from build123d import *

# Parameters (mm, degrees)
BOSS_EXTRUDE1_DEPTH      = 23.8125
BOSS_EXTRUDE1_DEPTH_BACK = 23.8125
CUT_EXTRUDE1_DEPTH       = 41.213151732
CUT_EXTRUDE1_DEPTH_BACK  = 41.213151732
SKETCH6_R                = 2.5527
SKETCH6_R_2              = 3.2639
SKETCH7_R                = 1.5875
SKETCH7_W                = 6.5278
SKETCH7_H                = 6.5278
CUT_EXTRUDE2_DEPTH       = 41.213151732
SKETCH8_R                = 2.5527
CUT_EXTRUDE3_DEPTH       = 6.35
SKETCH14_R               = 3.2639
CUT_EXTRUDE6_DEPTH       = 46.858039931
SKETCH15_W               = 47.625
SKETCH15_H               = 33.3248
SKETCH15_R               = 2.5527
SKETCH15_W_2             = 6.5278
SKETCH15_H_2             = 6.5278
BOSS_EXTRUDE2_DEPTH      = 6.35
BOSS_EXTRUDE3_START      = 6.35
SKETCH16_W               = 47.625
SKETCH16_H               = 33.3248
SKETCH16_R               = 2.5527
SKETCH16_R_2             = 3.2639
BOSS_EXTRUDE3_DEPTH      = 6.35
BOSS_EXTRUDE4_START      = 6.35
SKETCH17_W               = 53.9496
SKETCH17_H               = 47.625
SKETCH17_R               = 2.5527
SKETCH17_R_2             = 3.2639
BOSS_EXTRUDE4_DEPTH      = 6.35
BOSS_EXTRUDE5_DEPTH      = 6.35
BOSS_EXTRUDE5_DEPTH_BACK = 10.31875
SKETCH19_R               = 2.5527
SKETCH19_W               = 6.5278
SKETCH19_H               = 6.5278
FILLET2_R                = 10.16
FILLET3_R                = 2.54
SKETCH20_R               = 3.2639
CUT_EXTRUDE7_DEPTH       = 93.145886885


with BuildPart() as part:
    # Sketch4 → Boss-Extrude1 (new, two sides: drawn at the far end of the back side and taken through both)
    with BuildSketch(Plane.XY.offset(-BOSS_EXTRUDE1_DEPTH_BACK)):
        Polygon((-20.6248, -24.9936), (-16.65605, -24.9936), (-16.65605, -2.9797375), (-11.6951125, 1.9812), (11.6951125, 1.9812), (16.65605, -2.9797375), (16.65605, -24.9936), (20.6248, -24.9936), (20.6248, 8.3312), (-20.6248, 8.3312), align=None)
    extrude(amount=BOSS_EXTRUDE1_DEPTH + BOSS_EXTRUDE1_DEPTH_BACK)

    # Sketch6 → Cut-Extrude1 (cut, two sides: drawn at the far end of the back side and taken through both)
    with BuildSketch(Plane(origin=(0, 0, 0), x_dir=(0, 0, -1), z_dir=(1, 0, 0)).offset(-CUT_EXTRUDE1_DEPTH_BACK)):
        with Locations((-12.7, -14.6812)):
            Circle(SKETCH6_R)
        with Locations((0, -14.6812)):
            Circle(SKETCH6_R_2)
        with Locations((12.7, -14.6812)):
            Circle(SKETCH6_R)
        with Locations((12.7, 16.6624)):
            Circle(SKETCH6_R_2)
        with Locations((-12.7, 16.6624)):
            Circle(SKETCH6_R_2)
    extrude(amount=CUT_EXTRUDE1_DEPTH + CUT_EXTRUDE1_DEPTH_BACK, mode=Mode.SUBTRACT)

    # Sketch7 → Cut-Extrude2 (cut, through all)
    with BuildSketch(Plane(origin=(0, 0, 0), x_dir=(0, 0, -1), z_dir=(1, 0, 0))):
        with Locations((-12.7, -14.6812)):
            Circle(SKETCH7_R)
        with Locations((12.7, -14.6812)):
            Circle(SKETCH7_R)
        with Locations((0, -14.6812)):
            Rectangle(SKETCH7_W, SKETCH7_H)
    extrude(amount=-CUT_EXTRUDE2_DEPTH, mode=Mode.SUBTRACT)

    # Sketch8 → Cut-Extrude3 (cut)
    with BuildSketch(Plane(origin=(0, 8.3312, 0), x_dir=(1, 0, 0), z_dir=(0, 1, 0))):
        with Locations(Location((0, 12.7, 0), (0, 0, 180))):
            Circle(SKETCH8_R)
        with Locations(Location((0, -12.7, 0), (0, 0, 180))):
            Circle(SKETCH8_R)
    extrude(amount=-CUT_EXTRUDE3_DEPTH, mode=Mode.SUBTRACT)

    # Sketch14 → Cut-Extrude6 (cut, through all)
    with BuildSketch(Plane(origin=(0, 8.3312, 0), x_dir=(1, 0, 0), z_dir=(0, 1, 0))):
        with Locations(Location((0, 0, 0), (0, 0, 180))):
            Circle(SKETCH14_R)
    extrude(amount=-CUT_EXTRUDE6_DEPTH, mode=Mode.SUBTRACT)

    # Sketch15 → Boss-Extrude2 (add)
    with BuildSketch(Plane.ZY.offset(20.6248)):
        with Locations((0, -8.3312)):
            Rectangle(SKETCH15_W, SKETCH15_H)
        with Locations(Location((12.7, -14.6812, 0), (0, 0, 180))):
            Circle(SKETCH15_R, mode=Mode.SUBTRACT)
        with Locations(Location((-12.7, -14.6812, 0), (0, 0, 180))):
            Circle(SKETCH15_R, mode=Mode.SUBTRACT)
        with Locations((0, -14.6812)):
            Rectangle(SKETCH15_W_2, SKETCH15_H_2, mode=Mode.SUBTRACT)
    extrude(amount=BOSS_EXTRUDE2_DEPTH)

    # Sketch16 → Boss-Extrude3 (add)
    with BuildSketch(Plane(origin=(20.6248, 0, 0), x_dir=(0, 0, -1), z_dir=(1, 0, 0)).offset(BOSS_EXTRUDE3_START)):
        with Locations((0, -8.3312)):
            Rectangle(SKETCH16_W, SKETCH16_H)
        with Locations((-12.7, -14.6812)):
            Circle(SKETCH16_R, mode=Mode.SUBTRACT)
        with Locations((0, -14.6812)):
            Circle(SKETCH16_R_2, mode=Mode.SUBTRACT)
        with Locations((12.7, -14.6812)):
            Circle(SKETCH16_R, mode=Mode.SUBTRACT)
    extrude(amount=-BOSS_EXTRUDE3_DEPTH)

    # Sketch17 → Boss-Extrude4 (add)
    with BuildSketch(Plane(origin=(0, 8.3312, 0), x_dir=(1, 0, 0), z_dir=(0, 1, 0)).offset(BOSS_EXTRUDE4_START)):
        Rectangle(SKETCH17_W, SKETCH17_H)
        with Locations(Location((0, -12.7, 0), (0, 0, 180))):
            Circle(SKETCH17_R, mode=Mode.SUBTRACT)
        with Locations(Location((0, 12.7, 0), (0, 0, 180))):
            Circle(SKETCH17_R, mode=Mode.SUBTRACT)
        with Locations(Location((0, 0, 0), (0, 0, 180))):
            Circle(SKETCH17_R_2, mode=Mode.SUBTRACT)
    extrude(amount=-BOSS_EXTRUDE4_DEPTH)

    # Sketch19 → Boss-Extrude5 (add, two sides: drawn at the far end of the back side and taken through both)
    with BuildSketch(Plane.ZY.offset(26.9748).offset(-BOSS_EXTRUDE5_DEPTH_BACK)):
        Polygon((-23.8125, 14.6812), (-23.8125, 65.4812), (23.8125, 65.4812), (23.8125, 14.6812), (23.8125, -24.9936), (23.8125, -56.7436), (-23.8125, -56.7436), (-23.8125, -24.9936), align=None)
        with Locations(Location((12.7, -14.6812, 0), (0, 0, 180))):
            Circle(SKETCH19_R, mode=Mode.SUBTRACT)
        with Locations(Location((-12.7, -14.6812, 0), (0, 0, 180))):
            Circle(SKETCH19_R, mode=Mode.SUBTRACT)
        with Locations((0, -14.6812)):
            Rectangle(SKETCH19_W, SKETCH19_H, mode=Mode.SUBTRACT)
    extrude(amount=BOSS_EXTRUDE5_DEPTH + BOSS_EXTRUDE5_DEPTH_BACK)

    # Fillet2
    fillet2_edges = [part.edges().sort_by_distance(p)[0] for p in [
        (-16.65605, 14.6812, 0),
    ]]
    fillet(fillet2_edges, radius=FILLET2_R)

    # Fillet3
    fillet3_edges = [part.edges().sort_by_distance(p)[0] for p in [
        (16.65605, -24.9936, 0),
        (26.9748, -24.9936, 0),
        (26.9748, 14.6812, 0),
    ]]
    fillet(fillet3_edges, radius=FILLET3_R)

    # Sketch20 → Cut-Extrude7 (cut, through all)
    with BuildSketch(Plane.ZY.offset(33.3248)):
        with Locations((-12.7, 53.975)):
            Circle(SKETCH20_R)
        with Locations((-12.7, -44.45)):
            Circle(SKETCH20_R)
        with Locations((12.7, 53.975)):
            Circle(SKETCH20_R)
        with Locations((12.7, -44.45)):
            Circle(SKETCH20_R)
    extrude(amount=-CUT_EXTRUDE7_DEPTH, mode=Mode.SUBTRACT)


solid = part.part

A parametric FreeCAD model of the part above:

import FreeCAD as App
import Part
import Sketcher
from FreeCAD import Vector
Q = App.Units.Quantity


def edges_at(feature, points):
    """Names of the edges that pass closest to the given points."""
    edges = feature.Shape.Edges
    near = lambda p: min(range(len(edges)), key=lambda i: edges[i].distToShape(Part.Vertex(*p))[0])
    return sorted({f"Edge{near(p) + 1}" for p in points})


def add_polygon(sketch, points):
    """Adds a closed chain of lines whose ends are joined by coincident constraints."""
    first, n = sketch.GeometryCount, len(points)
    for a, b in zip(points, points[1:] + points[:1]):
        sketch.addGeometry(Part.LineSegment(App.Vector(*a, 0), App.Vector(*b, 0)), False)
    for i in range(n):
        sketch.addConstraint(Sketcher.Constraint("Coincident", first + i, 2, first + (i + 1) % n, 1))

doc = App.newDocument("Part")
body = doc.addObject("PartDesign::Body", "Body")

# Sketch on XY plane
sketch1 = body.newObject("Sketcher::SketchObject", "Sketch")
sketch1.AttachmentSupport = (doc.getObject("XY_Plane"), [""])
sketch1.MapMode = "FlatFace"
add_polygon(sketch1, [(-20.6, -25), (-16.7, -25), (-16.7, -3), (-11.7, 2), (11.7, 2), (16.7, -3), (16.7, -25), (20.6, -25), (20.6, 8.3), (-20.6, 8.3)])  # lines 0-9
sketch1.addConstraint(Sketcher.Constraint("Horizontal", 0))
sketch1.addConstraint(Sketcher.Constraint("Vertical", 1))
sketch1.addConstraint(Sketcher.Constraint("Horizontal", 3))
sketch1.addConstraint(Sketcher.Constraint("Vertical", 5))
sketch1.addConstraint(Sketcher.Constraint("Horizontal", 6))
sketch1.addConstraint(Sketcher.Constraint("Vertical", 7))
sketch1.addConstraint(Sketcher.Constraint("Horizontal", 8))
sketch1.addConstraint(Sketcher.Constraint("Vertical", 9))
sketch1.addConstraint(Sketcher.Constraint("Symmetric", 1, 2, 4, 2, -2))
sketch1.addConstraint(Sketcher.Constraint("Symmetric", 6, 2, 9, 2, -2))
sketch1.addConstraint(Sketcher.Constraint("Perpendicular", 2, 4))
sketch1.addConstraint(Sketcher.Constraint("Equal", 2, 4))
sketch1.addConstraint(Sketcher.Constraint("DistanceX", 0, 1, 0, 2, Q("0.15625 in")))
sketch1.addConstraint(Sketcher.Constraint("DistanceX", 8, 2, 8, 1, Q("1.624 in")))
sketch1.addConstraint(Sketcher.Constraint("DistanceY", 7, 1, 7, 2, Q("1.312 in")))
sketch1.addConstraint(Sketcher.Constraint("DistanceY", 3, 2, 7, 2, Q("0.25 in")))
sketch1.addConstraint(Sketcher.Constraint("DistanceY", 0, 2, -1, 1, Q("0.984 in")))
sketch1.addConstraint(Sketcher.Constraint("DistanceX", 3, 1, 3, 2, Q("23.390225 mm")))
pad1 = body.newObject("PartDesign::Pad", "Pad")
pad1.Profile = sketch1
pad1.Type = "TwoLengths"
pad1.Length = Q("0.9375 in")
pad1.Length2 = Q("0.9375 in")

# Sketch on YZ plane
sketch2 = body.newObject("Sketcher::SketchObject", "Sketch001")
sketch2.AttachmentSupport = (doc.getObject("YZ_Plane"), [""])
sketch2.MapMode = "FlatFace"
sketch2.addGeometry(Part.Circle(Vector(-14.7, 12.7, 0), Vector(0, 0, 1), 2.6), False)
sketch2.addGeometry(Part.Circle(Vector(-14.7, 0, 0), Vector(0, 0, 1), 3.3), False)
sketch2.addGeometry(Part.Circle(Vector(-14.7, -12.7, 0), Vector(0, 0, 1), 2.6), False)
sketch2.addGeometry(Part.Circle(Vector(16.7, -12.7, 0), Vector(0, 0, 1), 3.3), False)
sketch2.addGeometry(Part.Circle(Vector(16.7, 12.7, 0), Vector(0, 0, 1), 3.3), False)
sketch2.addConstraint(Sketcher.Constraint("Equal", 0, 2))
sketch2.addConstraint(Sketcher.Constraint("Equal", 1, 3))
sketch2.addConstraint(Sketcher.Constraint("Equal", 3, 4))
sketch2.addConstraint(Sketcher.Constraint("Symmetric", 0, 3, 2, 3, -1))
sketch2.addConstraint(Sketcher.Constraint("Symmetric", 3, 3, 4, 3, -1))
sketch2.addConstraint(Sketcher.Constraint("PointOnObject", 1, 3, -1))
sketch2.addConstraint(Sketcher.Constraint("Horizontal", 2, 3, 3, 3))
sketch2.addConstraint(Sketcher.Constraint("Vertical", 0, 3, 1, 3))
sketch2.addConstraint(Sketcher.Constraint("Diameter", 0, Q("0.201 in")))
sketch2.addConstraint(Sketcher.Constraint("Diameter", 1, Q("0.257 in")))
sketch2.addConstraint(Sketcher.Constraint("DistanceY", 2, 3, 0, 3, Q("1 in")))
sketch2.addConstraint(Sketcher.Constraint("DistanceX", 0, 3, -1, 1, Q("0.578 in")))
sketch2.addConstraint(Sketcher.Constraint("DistanceX", -1, 1, 3, 3, Q("0.656 in")))
pocket1 = body.newObject("PartDesign::Pocket", "Pocket")
pocket1.Profile = sketch2
pocket1.Type = "ThroughAll"
pocket1.Midplane = True

# Sketch on YZ plane
sketch3 = body.newObject("Sketcher::SketchObject", "Sketch002")
sketch3.AttachmentSupport = (doc.getObject("YZ_Plane"), [""])
sketch3.MapMode = "FlatFace"
sketch3.addGeometry(Part.Circle(Vector(-14.7, 12.7, 0), Vector(0, 0, 1), 1.6), False)  # 0
sketch3.addGeometry(Part.Circle(Vector(-14.7, -12.7, 0), Vector(0, 0, 1), 1.6), False)  # 1
add_polygon(sketch3, [(-11.4, 3.3), (-17.9, 3.3), (-17.9, -3.3), (-11.4, -3.3)])  # lines 2-5
sketch3.addConstraint(Sketcher.Constraint("Horizontal", 2))
sketch3.addConstraint(Sketcher.Constraint("Vertical", 3))
sketch3.addConstraint(Sketcher.Constraint("Horizontal", 4))
sketch3.addConstraint(Sketcher.Constraint("Vertical", 5))
sketch3.addConstraint(Sketcher.Constraint("Equal", 0, 1))
sketch3.addConstraint(Sketcher.Constraint("Symmetric", 0, 3, 1, 3, -1))
sketch3.addConstraint(Sketcher.Constraint("Equal", 4, 3))
sketch3.addConstraint(Sketcher.Constraint("Diameter", 0, Q("0.125 in")))
sketch3.addConstraint(Sketcher.Constraint("DistanceY", 1, 3, 0, 3, Q("1 in")))
sketch3.addConstraint(Sketcher.Constraint("DistanceX", 2, 2, 2, 1, Q("0.257 in")))
sketch3.addConstraint(Sketcher.Constraint("DistanceX", 0, 3, -1, 1, Q("0.578 in")))
sketch3.addConstraint(Sketcher.Constraint("DistanceX", 2, 2, -1, 1, Q("0.7065 in")))
sketch3.addConstraint(Sketcher.Constraint("DistanceY", -1, 1, 2, 2, Q("0.1285 in")))
pocket2 = body.newObject("PartDesign::Pocket", "Pocket001")
pocket2.Profile = sketch3
pocket2.Type = "ThroughAll"

# Sketch on XZ plane
sketch4 = body.newObject("Sketcher::SketchObject", "Sketch003")
sketch4.AttachmentSupport = (doc.getObject("XZ_Plane"), [""])
sketch4.MapMode = "FlatFace"
sketch4.AttachmentOffset = App.Placement(Vector(0, 0, -0.328 * 25.4), App.Rotation())
sketch4.addGeometry(Part.Circle(Vector(0, -12.7, 0), Vector(0, 0, 1), 2.6), False)
sketch4.addGeometry(Part.Circle(Vector(0, 12.7, 0), Vector(0, 0, 1), 2.6), False)
sketch4.addConstraint(Sketcher.Constraint("Equal", 0, 1))
sketch4.addConstraint(Sketcher.Constraint("Symmetric", 0, 3, 1, 3, -1, 1))
sketch4.addConstraint(Sketcher.Constraint("PointOnObject", 0, 3, -2))
sketch4.addConstraint(Sketcher.Constraint("Diameter", 0, Q("0.201 in")))
sketch4.addConstraint(Sketcher.Constraint("DistanceY", 0, 3, 1, 3, Q("1 in")))
pocket3 = body.newObject("PartDesign::Pocket", "Pocket002")
pocket3.Profile = sketch4
pocket3.Length = Q("0.25 in")
pocket3.Reversed = True

# Sketch on XZ plane
sketch5 = body.newObject("Sketcher::SketchObject", "Sketch004")
sketch5.AttachmentSupport = (doc.getObject("XZ_Plane"), [""])
sketch5.MapMode = "FlatFace"
sketch5.AttachmentOffset = App.Placement(Vector(0, 0, -0.328 * 25.4), App.Rotation())
sketch5.addGeometry(Part.Circle(Vector(0, 0, 0), Vector(0, 0, 1), 3.3), False)
sketch5.addConstraint(Sketcher.Constraint("Coincident", 0, 3, -1, 1))
sketch5.addConstraint(Sketcher.Constraint("Diameter", 0, Q("0.257 in")))
pocket4 = body.newObject("PartDesign::Pocket", "Pocket003")
pocket4.Profile = sketch5
pocket4.Type = "ThroughAll"
pocket4.Reversed = True

# Sketch on YZ plane
sketch6 = body.newObject("Sketcher::SketchObject", "Sketch005")
sketch6.AttachmentSupport = (doc.getObject("YZ_Plane"), [""])
sketch6.MapMode = "FlatFace"
sketch6.AttachmentOffset = App.Placement(Vector(0, 0, -0.812 * 25.4), App.Rotation())
add_polygon(sketch6, [(8.3, -23.8), (-25, -23.8), (-25, 23.8), (8.3, 23.8)])  # lines 0-3
sketch6.addGeometry(Part.Circle(Vector(-14.7, -12.7, 0), Vector(0, 0, 1), 2.6), False)  # 4
add_polygon(sketch6, [(-17.9, 3.3), (-17.9, -3.3), (-11.4, -3.3), (-11.4, 3.3)])  # lines 5-8
sketch6.addGeometry(Part.Circle(Vector(-14.7, 12.7, 0), Vector(0, 0, 1), 2.6), False)  # 9
sketch6.addConstraint(Sketcher.Constraint("Horizontal", 0))
sketch6.addConstraint(Sketcher.Constraint("Vertical", 1))
sketch6.addConstraint(Sketcher.Constraint("Horizontal", 2))
sketch6.addConstraint(Sketcher.Constraint("Vertical", 3))
sketch6.addConstraint(Sketcher.Constraint("Vertical", 5))
sketch6.addConstraint(Sketcher.Constraint("Horizontal", 6))
sketch6.addConstraint(Sketcher.Constraint("Vertical", 7))
sketch6.addConstraint(Sketcher.Constraint("Horizontal", 8))
sketch6.addConstraint(Sketcher.Constraint("Equal", 4, 9))
sketch6.addConstraint(Sketcher.Constraint("Symmetric", 4, 3, 9, 3, -1))
sketch6.addConstraint(Sketcher.Constraint("Equal", 8, 5))
sketch6.addConstraint(Sketcher.Constraint("Diameter", 4, Q("0.201 in")))
sketch6.addConstraint(Sketcher.Constraint("DistanceY", 4, 3, 9, 3, Q("1 in")))
sketch6.addConstraint(Sketcher.Constraint("DistanceX", 0, 2, 0, 1, Q("1.312 in")))
sketch6.addConstraint(Sketcher.Constraint("DistanceX", 6, 1, 6, 2, Q("0.257 in")))
sketch6.addConstraint(Sketcher.Constraint("DistanceY", 1, 1, 1, 2, Q("1.875 in")))
sketch6.addConstraint(Sketcher.Constraint("DistanceX", 4, 3, -1, 1, Q("0.578 in")))
sketch6.addConstraint(Sketcher.Constraint("DistanceX", 0, 2, -1, 1, Q("0.984 in")))
sketch6.addConstraint(Sketcher.Constraint("DistanceY", 0, 2, -1, 1, Q("0.9375 in")))
sketch6.addConstraint(Sketcher.Constraint("DistanceY", 0, 2, 5, 2, Q("0.809 in")))
sketch6.addConstraint(Sketcher.Constraint("DistanceX", 5, 2, -1, 1, Q("0.7065 in")))
pad2 = body.newObject("PartDesign::Pad", "Pad001")
pad2.Profile = sketch6
pad2.Length = Q("0.25 in")
pad2.Reversed = True

# Sketch on YZ plane
sketch7 = body.newObject("Sketcher::SketchObject", "Sketch006")
sketch7.AttachmentSupport = (doc.getObject("YZ_Plane"), [""])
sketch7.MapMode = "FlatFace"
sketch7.AttachmentOffset = App.Placement(Vector(0, 0, 1.062 * 25.4), App.Rotation())
add_polygon(sketch7, [(8.3, 23.8), (-25, 23.8), (-25, -23.8), (8.3, -23.8)])  # lines 0-3
sketch7.addGeometry(Part.Circle(Vector(-14.7, 12.7, 0), Vector(0, 0, 1), 2.6), False)  # 4
sketch7.addGeometry(Part.Circle(Vector(-14.7, 0, 0), Vector(0, 0, 1), 3.3), False)  # 5
sketch7.addGeometry(Part.Circle(Vector(-14.7, -12.7, 0), Vector(0, 0, 1), 2.6), False)  # 6
sketch7.addConstraint(Sketcher.Constraint("Horizontal", 0))
sketch7.addConstraint(Sketcher.Constraint("Vertical", 1))
sketch7.addConstraint(Sketcher.Constraint("Horizontal", 2))
sketch7.addConstraint(Sketcher.Constraint("Vertical", 3))
sketch7.addConstraint(Sketcher.Constraint("Equal", 4, 6))
sketch7.addConstraint(Sketcher.Constraint("Symmetric", 4, 3, 6, 3, -1))
sketch7.addConstraint(Sketcher.Constraint("PointOnObject", 5, 3, -1))
sketch7.addConstraint(Sketcher.Constraint("Vertical", 4, 3, 5, 3))
sketch7.addConstraint(Sketcher.Constraint("Diameter", 4, Q("0.201 in")))
sketch7.addConstraint(Sketcher.Constraint("Diameter", 5, Q("0.257 in")))
sketch7.addConstraint(Sketcher.Constraint("DistanceY", 6, 3, 4, 3, Q("1 in")))
sketch7.addConstraint(Sketcher.Constraint("DistanceX", 0, 2, 0, 1, Q("1.312 in")))
sketch7.addConstraint(Sketcher.Constraint("DistanceY", 1, 2, 1, 1, Q("1.875 in")))
sketch7.addConstraint(Sketcher.Constraint("DistanceX", 4, 3, -1, 1, Q("0.578 in")))
sketch7.addConstraint(Sketcher.Constraint("DistanceX", 0, 2, -1, 1, Q("0.984 in")))
sketch7.addConstraint(Sketcher.Constraint("DistanceY", -1, 1, 0, 2, Q("0.9375 in")))
pad3 = body.newObject("PartDesign::Pad", "Pad002")
pad3.Profile = sketch7
pad3.Length = Q("0.25 in")
pad3.Reversed = True

# Sketch on XZ plane
sketch8 = body.newObject("Sketcher::SketchObject", "Sketch007")
sketch8.AttachmentSupport = (doc.getObject("XZ_Plane"), [""])
sketch8.MapMode = "FlatFace"
sketch8.AttachmentOffset = App.Placement(Vector(0, 0, -0.578 * 25.4), App.Rotation())
add_polygon(sketch8, [(-27, -23.8), (-27, 23.8), (27, 23.8), (27, -23.8)])  # lines 0-3
sketch8.addGeometry(Part.Circle(Vector(0, 12.7, 0), Vector(0, 0, 1), 2.6), False)  # 4
sketch8.addGeometry(Part.Circle(Vector(0, 0, 0), Vector(0, 0, 1), 3.3), False)  # 5
sketch8.addGeometry(Part.Circle(Vector(0, -12.7, 0), Vector(0, 0, 1), 2.6), False)  # 6
sketch8.addConstraint(Sketcher.Constraint("Vertical", 0))
sketch8.addConstraint(Sketcher.Constraint("Horizontal", 1))
sketch8.addConstraint(Sketcher.Constraint("Vertical", 2))
sketch8.addConstraint(Sketcher.Constraint("Horizontal", 3))
sketch8.addConstraint(Sketcher.Constraint("Coincident", 5, 3, -1, 1))
sketch8.addConstraint(Sketcher.Constraint("Equal", 4, 6))
sketch8.addConstraint(Sketcher.Constraint("Symmetric", 4, 3, 6, 3, -1, 1))
sketch8.addConstraint(Sketcher.Constraint("Symmetric", 0, 2, 2, 2, -1, 1))
sketch8.addConstraint(Sketcher.Constraint("PointOnObject", 4, 3, -2))
sketch8.addConstraint(Sketcher.Constraint("Diameter", 4, Q("0.201 in")))
sketch8.addConstraint(Sketcher.Constraint("Diameter", 5, Q("0.257 in")))
sketch8.addConstraint(Sketcher.Constraint("DistanceY", 6, 3, 4, 3, Q("1 in")))
sketch8.addConstraint(Sketcher.Constraint("DistanceX", 1, 1, 1, 2, Q("2.124 in")))
sketch8.addConstraint(Sketcher.Constraint("DistanceY", 0, 1, 0, 2, Q("1.875 in")))
pad4 = body.newObject("PartDesign::Pad", "Pad003")
pad4.Profile = sketch8
pad4.Length = Q("0.25 in")

# Sketch on YZ plane
sketch9 = body.newObject("Sketcher::SketchObject", "Sketch008")
sketch9.AttachmentSupport = (doc.getObject("YZ_Plane"), [""])
sketch9.MapMode = "FlatFace"
sketch9.AttachmentOffset = App.Placement(Vector(0, 0, -1.062 * 25.4), App.Rotation())
add_polygon(sketch9, [(65.5, -23.8), (-56.7, -23.8), (-56.7, 23.8), (65.5, 23.8)])  # lines 0-3
sketch9.addGeometry(Part.Circle(Vector(-14.7, 12.7, 0), Vector(0, 0, 1), 2.6), False)  # 4
add_polygon(sketch9, [(-17.9, -3.3), (-11.4, -3.3), (-11.4, 3.3), (-17.9, 3.3)])  # lines 5-8
sketch9.addGeometry(Part.Circle(Vector(-14.7, -12.7, 0), Vector(0, 0, 1), 2.6), False)  # 9
sketch9.addConstraint(Sketcher.Constraint("Horizontal", 0))
sketch9.addConstraint(Sketcher.Constraint("Vertical", 1))
sketch9.addConstraint(Sketcher.Constraint("Horizontal", 2))
sketch9.addConstraint(Sketcher.Constraint("Vertical", 3))
sketch9.addConstraint(Sketcher.Constraint("Horizontal", 5))
sketch9.addConstraint(Sketcher.Constraint("Vertical", 6))
sketch9.addConstraint(Sketcher.Constraint("Horizontal", 7))
sketch9.addConstraint(Sketcher.Constraint("Vertical", 8))
sketch9.addConstraint(Sketcher.Constraint("Equal", 4, 9))
sketch9.addConstraint(Sketcher.Constraint("Symmetric", 4, 3, 9, 3, -1))
sketch9.addConstraint(Sketcher.Constraint("Equal", 7, 6))
sketch9.addConstraint(Sketcher.Constraint("Diameter", 4, Q("0.201 in")))
sketch9.addConstraint(Sketcher.Constraint("DistanceY", 9, 3, 4, 3, Q("1 in")))
sketch9.addConstraint(Sketcher.Constraint("DistanceX", 0, 2, 0, 1, Q("4.812 in")))
sketch9.addConstraint(Sketcher.Constraint("DistanceX", 5, 1, 5, 2, Q("0.257 in")))
sketch9.addConstraint(Sketcher.Constraint("DistanceY", 1, 1, 1, 2, Q("1.875 in")))
sketch9.addConstraint(Sketcher.Constraint("DistanceX", 4, 3, -1, 1, Q("0.578 in")))
sketch9.addConstraint(Sketcher.Constraint("DistanceX", 0, 2, -1, 1, Q("2.234 in")))
sketch9.addConstraint(Sketcher.Constraint("DistanceY", 0, 2, -1, 1, Q("0.9375 in")))
sketch9.addConstraint(Sketcher.Constraint("DistanceY", 0, 2, 5, 2, Q("0.809 in")))
sketch9.addConstraint(Sketcher.Constraint("DistanceX", 5, 2, -1, 1, Q("0.4495 in")))
pad5 = body.newObject("PartDesign::Pad", "Pad004")
pad5.Profile = sketch9
pad5.Type = "TwoLengths"
pad5.Length = Q("0.25 in")
pad5.Length2 = Q("0.40625 in")
pad5.Reversed = True
doc.recompute()

fillet = body.newObject("PartDesign::Fillet", "Fillet")
fillet.Base = (pad5, edges_at(pad5, [(-16.656, 14.681, 0)]))
fillet.Radius = Q("0.4 in")
doc.recompute()

fillet2 = body.newObject("PartDesign::Fillet", "Fillet001")
fillet2.Base = (fillet, edges_at(fillet, [(16.656, -24.994, 0), (26.975, -24.994, 0), (26.975, 14.681, 0)]))
fillet2.Radius = Q("0.1 in")

# Sketch on YZ plane
sketch10 = body.newObject("Sketcher::SketchObject", "Sketch009")
sketch10.AttachmentSupport = (doc.getObject("YZ_Plane"), [""])
sketch10.MapMode = "FlatFace"
sketch10.AttachmentOffset = App.Placement(Vector(0, 0, -1.312 * 25.4), App.Rotation())
sketch10.addGeometry(Part.Circle(Vector(54, -12.7, 0), Vector(0, 0, 1), 3.3), False)
sketch10.addGeometry(Part.Circle(Vector(-44.5, -12.7, 0), Vector(0, 0, 1), 3.3), False)
sketch10.addGeometry(Part.Circle(Vector(54, 12.7, 0), Vector(0, 0, 1), 3.3), False)
sketch10.addGeometry(Part.Circle(Vector(-44.5, 12.7, 0), Vector(0, 0, 1), 3.3), False)
sketch10.addConstraint(Sketcher.Constraint("Equal", 0, 1))
sketch10.addConstraint(Sketcher.Constraint("Equal", 1, 2))
sketch10.addConstraint(Sketcher.Constraint("Equal", 2, 3))
sketch10.addConstraint(Sketcher.Constraint("Symmetric", 0, 3, 2, 3, -1))
sketch10.addConstraint(Sketcher.Constraint("Symmetric", 1, 3, 3, 3, -1))
sketch10.addConstraint(Sketcher.Constraint("Horizontal", 0, 3, 1, 3))
sketch10.addConstraint(Sketcher.Constraint("Diameter", 0, Q("0.257 in")))
sketch10.addConstraint(Sketcher.Constraint("DistanceY", 0, 3, 2, 3, Q("1 in")))
sketch10.addConstraint(Sketcher.Constraint("DistanceX", 1, 3, -1, 1, Q("1.75 in")))
sketch10.addConstraint(Sketcher.Constraint("DistanceX", -1, 1, 0, 3, Q("2.125 in")))
pocket5 = body.newObject("PartDesign::Pocket", "Pocket004")
pocket5.Profile = sketch10
pocket5.Type = "ThroughAll"
pocket5.Reversed = True

doc.recompute()
